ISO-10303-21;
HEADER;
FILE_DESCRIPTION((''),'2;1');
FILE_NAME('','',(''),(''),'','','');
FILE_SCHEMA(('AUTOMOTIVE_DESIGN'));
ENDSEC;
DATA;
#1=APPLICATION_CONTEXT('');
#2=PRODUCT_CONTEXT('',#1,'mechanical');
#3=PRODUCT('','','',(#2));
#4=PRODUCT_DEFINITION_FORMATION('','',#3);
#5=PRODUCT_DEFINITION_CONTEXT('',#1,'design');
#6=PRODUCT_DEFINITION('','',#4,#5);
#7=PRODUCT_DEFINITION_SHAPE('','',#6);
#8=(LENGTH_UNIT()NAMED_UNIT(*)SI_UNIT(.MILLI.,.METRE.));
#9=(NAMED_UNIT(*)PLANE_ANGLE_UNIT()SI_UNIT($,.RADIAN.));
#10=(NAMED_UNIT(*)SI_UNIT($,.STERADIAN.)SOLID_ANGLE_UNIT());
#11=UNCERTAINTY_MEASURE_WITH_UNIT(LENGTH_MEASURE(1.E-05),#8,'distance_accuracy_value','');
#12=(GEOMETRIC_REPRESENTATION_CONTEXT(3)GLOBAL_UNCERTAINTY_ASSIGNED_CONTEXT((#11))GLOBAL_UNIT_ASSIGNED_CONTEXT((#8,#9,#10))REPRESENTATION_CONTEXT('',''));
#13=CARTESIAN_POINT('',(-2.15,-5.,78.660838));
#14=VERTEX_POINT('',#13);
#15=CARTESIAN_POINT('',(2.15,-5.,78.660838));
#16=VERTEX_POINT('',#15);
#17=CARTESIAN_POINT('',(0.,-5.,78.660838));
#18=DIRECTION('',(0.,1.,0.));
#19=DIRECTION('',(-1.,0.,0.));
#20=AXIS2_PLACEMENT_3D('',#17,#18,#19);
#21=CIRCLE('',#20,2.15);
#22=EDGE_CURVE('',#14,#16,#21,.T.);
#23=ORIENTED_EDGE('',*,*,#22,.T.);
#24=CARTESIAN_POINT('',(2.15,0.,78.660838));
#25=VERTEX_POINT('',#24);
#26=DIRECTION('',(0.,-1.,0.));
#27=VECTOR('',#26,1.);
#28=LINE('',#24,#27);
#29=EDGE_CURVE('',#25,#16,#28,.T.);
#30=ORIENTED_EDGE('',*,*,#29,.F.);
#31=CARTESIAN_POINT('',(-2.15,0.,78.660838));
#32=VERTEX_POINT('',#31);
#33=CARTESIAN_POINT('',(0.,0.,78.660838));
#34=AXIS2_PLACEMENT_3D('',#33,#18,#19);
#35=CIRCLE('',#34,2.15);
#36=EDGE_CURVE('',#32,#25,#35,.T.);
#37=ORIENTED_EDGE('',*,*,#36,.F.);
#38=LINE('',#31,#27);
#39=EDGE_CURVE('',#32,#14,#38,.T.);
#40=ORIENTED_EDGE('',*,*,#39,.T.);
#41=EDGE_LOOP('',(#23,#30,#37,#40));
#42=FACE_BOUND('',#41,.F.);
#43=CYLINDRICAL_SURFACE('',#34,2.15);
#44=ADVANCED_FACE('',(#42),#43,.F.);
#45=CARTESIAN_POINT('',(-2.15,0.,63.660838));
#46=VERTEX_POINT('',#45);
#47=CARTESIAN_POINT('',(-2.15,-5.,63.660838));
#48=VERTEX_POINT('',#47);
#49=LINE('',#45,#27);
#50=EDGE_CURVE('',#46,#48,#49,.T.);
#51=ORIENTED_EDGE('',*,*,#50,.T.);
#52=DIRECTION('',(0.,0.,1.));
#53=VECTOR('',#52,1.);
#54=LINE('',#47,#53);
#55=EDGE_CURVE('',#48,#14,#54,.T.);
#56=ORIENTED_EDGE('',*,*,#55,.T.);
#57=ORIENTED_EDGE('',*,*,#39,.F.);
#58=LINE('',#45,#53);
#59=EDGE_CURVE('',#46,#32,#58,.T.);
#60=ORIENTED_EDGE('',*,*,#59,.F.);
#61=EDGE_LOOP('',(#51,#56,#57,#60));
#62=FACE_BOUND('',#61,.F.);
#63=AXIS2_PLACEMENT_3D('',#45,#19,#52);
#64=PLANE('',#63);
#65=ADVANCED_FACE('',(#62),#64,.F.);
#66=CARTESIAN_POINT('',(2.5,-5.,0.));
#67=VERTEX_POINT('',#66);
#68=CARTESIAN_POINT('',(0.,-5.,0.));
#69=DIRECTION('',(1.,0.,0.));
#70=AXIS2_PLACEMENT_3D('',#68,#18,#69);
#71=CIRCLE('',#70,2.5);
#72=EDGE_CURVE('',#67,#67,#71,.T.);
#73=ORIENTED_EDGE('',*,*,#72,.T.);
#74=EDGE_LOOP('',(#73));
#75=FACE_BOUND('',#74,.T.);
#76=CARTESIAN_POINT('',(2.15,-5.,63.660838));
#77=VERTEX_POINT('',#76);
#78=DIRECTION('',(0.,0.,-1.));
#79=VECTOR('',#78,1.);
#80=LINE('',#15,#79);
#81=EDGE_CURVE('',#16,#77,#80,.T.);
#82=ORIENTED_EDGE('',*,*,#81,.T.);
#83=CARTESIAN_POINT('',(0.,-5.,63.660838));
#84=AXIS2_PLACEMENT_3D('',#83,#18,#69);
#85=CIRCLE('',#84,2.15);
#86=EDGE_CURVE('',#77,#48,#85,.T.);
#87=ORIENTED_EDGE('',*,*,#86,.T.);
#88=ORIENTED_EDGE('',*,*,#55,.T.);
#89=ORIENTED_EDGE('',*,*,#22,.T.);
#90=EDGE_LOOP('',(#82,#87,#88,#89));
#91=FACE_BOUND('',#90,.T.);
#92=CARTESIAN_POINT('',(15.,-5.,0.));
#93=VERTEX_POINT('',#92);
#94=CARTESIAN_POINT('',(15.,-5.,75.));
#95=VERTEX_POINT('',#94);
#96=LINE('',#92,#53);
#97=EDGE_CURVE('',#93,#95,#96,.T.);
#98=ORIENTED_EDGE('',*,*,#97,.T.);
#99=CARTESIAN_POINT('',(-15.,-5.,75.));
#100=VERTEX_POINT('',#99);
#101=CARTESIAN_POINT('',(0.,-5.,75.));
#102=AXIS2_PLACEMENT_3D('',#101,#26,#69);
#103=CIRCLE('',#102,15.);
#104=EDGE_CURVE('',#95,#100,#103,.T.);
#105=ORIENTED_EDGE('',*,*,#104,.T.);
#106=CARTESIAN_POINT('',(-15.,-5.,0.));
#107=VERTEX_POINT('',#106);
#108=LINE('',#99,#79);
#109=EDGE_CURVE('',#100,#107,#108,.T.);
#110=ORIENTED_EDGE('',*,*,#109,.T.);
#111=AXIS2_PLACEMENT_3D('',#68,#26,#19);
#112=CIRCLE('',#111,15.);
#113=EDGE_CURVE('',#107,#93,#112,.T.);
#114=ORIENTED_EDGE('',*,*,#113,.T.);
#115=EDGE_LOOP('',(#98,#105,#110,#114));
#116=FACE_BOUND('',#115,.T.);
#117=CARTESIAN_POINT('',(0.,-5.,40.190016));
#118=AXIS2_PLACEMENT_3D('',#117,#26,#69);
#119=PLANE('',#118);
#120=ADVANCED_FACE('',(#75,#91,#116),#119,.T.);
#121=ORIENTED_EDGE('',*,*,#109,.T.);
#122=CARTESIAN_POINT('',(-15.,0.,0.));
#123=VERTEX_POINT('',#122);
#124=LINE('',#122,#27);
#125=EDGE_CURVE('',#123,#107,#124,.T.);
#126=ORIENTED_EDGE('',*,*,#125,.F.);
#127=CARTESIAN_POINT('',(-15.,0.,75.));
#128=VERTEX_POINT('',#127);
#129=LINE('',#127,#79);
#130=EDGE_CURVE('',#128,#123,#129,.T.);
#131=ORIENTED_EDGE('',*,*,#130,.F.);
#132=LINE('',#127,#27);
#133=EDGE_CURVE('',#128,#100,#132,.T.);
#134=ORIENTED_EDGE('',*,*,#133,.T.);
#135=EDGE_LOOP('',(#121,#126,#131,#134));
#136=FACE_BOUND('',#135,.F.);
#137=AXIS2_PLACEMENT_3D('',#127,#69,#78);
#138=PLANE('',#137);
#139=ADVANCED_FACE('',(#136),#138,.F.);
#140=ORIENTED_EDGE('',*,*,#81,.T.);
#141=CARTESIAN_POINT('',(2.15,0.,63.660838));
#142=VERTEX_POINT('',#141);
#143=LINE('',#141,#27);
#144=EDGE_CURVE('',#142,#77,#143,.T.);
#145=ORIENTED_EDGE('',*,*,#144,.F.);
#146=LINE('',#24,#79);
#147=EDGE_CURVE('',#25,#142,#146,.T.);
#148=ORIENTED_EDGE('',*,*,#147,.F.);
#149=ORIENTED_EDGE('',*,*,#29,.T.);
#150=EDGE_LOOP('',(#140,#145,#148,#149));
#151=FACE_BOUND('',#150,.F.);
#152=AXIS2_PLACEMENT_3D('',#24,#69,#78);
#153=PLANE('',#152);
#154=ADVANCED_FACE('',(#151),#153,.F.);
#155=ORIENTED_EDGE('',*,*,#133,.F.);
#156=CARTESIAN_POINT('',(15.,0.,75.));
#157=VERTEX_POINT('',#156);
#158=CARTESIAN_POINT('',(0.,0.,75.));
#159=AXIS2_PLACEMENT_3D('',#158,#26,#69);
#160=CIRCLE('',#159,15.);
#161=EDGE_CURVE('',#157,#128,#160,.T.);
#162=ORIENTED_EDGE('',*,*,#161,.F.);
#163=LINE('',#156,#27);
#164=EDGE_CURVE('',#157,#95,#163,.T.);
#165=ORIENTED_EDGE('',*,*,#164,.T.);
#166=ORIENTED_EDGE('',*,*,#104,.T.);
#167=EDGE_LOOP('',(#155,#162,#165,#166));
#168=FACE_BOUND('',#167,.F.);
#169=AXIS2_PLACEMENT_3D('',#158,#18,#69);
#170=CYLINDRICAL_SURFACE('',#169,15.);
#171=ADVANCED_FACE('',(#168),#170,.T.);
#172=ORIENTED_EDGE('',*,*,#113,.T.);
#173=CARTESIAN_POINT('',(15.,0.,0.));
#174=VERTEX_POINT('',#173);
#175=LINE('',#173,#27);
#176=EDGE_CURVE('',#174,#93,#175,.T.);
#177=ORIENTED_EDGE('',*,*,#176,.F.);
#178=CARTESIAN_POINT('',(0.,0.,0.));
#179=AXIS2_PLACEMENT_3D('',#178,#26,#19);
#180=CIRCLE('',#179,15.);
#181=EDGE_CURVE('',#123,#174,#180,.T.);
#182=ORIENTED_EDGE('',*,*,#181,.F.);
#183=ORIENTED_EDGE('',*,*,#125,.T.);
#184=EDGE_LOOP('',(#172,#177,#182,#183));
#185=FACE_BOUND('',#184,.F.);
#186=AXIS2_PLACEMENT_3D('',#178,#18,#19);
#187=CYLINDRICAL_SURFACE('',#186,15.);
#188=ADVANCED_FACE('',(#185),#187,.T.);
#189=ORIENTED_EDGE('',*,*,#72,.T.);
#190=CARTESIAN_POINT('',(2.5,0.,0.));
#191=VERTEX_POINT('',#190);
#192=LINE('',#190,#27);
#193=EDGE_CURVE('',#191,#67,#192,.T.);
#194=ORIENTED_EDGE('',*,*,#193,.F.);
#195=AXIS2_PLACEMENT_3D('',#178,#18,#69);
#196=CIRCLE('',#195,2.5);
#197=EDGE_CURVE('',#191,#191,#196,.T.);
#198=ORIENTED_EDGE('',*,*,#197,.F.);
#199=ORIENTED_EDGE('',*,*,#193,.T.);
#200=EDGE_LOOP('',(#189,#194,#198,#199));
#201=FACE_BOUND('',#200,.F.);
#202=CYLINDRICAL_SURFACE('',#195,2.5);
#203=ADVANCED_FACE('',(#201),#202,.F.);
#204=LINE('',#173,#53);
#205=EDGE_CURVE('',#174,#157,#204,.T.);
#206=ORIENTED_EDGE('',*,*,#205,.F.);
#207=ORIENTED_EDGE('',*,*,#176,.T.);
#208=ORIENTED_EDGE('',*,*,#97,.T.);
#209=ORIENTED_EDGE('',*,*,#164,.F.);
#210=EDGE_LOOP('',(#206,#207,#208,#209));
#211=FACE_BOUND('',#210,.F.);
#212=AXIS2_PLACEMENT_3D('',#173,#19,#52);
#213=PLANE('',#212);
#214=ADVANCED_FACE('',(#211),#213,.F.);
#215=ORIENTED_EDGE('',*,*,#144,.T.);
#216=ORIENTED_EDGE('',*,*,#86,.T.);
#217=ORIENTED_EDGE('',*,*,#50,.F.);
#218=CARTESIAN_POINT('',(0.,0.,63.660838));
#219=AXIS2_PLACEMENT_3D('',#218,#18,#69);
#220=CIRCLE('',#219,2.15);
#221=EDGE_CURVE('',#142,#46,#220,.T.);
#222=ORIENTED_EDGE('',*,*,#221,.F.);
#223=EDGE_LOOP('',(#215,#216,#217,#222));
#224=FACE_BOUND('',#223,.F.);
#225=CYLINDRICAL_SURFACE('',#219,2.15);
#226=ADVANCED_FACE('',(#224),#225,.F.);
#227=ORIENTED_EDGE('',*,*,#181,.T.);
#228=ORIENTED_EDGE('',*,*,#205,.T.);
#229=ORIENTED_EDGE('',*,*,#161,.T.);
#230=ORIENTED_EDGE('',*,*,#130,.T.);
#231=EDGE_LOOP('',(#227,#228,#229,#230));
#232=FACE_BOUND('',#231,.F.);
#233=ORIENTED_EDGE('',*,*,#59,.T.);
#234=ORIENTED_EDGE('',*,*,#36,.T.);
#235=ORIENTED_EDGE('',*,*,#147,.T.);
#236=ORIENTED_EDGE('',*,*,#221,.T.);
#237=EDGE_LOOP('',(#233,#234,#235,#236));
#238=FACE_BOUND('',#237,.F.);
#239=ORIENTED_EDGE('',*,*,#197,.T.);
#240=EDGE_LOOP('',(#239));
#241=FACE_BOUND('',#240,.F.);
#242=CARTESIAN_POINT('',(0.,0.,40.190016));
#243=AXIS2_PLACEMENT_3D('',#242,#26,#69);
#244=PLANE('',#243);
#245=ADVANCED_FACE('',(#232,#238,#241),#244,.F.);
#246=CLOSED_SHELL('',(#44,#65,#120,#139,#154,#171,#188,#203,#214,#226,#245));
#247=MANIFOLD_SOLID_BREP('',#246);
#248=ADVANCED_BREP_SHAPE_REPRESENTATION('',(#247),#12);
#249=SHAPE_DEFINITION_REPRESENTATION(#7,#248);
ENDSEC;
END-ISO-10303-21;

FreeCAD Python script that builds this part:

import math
import FreeCAD as App
import Part
import Sketcher

doc = App.newDocument("Part")
body = doc.addObject("PartDesign::Body", "Body")

# Sketch on XZ plane
sketch1 = body.newObject("Sketcher::SketchObject", "Sketch")
sketch1.AttachmentSupport = (doc.getObject("XZ_Plane"), [""])
sketch1.MapMode = "FlatFace"
sketch1.addGeometry(Part.LineSegment(App.Vector(-15, 75, 0), App.Vector(-15, 0, 0)), False)
sketch1.addGeometry(Part.ArcOfCircle(Part.Circle(App.Vector(0, 0, 0), App.Vector(0, 0, 1), 15), math.radians(180), math.radians(360)), False)
sketch1.addGeometry(Part.LineSegment(App.Vector(15, 0, 0), App.Vector(15, 75, 0)), False)
sketch1.addGeometry(Part.ArcOfCircle(Part.Circle(App.Vector(0, 75, 0), App.Vector(0, 0, 1), 15), math.radians(0), math.radians(180)), False)
sketch1.addGeometry(Part.ArcOfCircle(Part.Circle(App.Vector(0, 63.7, 0), App.Vector(0, 0, 1), 2.1), math.radians(180), math.radians(360)), False)
sketch1.addGeometry(Part.LineSegment(App.Vector(-2.1, 63.7, 0), App.Vector(-2.1, 78.7, 0)), False)
sketch1.addGeometry(Part.ArcOfCircle(Part.Circle(App.Vector(0, 78.7, 0), App.Vector(0, 0, 1), 2.1), math.radians(0), math.radians(180)), False)
sketch1.addGeometry(Part.LineSegment(App.Vector(2.1, 78.7, 0), App.Vector(2.1, 63.7, 0)), False)
sketch1.addGeometry(Part.Circle(App.Vector(0, 0, 0), App.Vector(0, 0, 1), 2.5), False)
sketch1.addConstraint(Sketcher.Constraint("Tangent", 0, 2, 1, 1))
sketch1.addConstraint(Sketcher.Constraint("Tangent", 1, 2, 2, 1))
sketch1.addConstraint(Sketcher.Constraint("Tangent", 2, 2, 3, 1))
sketch1.addConstraint(Sketcher.Constraint("Tangent", 3, 2, 0, 1))
sketch1.addConstraint(Sketcher.Constraint("Tangent", 4, 1, 5, 1))
sketch1.addConstraint(Sketcher.Constraint("Tangent", 5, 2, 6, 2))
sketch1.addConstraint(Sketcher.Constraint("Tangent", 6, 1, 7, 1))
sketch1.addConstraint(Sketcher.Constraint("Tangent", 7, 2, 4, 2))
sketch1.addConstraint(Sketcher.Constraint("Vertical", 0))
sketch1.addConstraint(Sketcher.Constraint("Vertical", 2))
sketch1.addConstraint(Sketcher.Constraint("Vertical", 5))
sketch1.addConstraint(Sketcher.Constraint("Vertical", 7))
sketch1.addConstraint(Sketcher.Constraint("Coincident", 1, 3, -1, 1))
sketch1.addConstraint(Sketcher.Constraint("Coincident", 8, 3, -1, 1))
sketch1.addConstraint(Sketcher.Constraint("PointOnObject", 4, 3, -2))
sketch1.addConstraint(Sketcher.Constraint("Diameter", 8, 5.0))
sketch1.addConstraint(Sketcher.Constraint("Radius", 1, 15.0))
sketch1.addConstraint(Sketcher.Constraint("DistanceY", 0, 2, 0, 1, 75.0))
sketch1.addConstraint(Sketcher.Constraint("DistanceY", 5, 1, 5, 2, 15.0))
sketch1.addConstraint(Sketcher.Constraint("Radius", 4, 2.15))
sketch1.addConstraint(Sketcher.Constraint("DistanceY", -1, 1, 6, 3, 78.660838))
pad1 = body.newObject("PartDesign::Pad", "Pad")
pad1.Profile = sketch1
pad1.Length = 5

doc.recompute()
